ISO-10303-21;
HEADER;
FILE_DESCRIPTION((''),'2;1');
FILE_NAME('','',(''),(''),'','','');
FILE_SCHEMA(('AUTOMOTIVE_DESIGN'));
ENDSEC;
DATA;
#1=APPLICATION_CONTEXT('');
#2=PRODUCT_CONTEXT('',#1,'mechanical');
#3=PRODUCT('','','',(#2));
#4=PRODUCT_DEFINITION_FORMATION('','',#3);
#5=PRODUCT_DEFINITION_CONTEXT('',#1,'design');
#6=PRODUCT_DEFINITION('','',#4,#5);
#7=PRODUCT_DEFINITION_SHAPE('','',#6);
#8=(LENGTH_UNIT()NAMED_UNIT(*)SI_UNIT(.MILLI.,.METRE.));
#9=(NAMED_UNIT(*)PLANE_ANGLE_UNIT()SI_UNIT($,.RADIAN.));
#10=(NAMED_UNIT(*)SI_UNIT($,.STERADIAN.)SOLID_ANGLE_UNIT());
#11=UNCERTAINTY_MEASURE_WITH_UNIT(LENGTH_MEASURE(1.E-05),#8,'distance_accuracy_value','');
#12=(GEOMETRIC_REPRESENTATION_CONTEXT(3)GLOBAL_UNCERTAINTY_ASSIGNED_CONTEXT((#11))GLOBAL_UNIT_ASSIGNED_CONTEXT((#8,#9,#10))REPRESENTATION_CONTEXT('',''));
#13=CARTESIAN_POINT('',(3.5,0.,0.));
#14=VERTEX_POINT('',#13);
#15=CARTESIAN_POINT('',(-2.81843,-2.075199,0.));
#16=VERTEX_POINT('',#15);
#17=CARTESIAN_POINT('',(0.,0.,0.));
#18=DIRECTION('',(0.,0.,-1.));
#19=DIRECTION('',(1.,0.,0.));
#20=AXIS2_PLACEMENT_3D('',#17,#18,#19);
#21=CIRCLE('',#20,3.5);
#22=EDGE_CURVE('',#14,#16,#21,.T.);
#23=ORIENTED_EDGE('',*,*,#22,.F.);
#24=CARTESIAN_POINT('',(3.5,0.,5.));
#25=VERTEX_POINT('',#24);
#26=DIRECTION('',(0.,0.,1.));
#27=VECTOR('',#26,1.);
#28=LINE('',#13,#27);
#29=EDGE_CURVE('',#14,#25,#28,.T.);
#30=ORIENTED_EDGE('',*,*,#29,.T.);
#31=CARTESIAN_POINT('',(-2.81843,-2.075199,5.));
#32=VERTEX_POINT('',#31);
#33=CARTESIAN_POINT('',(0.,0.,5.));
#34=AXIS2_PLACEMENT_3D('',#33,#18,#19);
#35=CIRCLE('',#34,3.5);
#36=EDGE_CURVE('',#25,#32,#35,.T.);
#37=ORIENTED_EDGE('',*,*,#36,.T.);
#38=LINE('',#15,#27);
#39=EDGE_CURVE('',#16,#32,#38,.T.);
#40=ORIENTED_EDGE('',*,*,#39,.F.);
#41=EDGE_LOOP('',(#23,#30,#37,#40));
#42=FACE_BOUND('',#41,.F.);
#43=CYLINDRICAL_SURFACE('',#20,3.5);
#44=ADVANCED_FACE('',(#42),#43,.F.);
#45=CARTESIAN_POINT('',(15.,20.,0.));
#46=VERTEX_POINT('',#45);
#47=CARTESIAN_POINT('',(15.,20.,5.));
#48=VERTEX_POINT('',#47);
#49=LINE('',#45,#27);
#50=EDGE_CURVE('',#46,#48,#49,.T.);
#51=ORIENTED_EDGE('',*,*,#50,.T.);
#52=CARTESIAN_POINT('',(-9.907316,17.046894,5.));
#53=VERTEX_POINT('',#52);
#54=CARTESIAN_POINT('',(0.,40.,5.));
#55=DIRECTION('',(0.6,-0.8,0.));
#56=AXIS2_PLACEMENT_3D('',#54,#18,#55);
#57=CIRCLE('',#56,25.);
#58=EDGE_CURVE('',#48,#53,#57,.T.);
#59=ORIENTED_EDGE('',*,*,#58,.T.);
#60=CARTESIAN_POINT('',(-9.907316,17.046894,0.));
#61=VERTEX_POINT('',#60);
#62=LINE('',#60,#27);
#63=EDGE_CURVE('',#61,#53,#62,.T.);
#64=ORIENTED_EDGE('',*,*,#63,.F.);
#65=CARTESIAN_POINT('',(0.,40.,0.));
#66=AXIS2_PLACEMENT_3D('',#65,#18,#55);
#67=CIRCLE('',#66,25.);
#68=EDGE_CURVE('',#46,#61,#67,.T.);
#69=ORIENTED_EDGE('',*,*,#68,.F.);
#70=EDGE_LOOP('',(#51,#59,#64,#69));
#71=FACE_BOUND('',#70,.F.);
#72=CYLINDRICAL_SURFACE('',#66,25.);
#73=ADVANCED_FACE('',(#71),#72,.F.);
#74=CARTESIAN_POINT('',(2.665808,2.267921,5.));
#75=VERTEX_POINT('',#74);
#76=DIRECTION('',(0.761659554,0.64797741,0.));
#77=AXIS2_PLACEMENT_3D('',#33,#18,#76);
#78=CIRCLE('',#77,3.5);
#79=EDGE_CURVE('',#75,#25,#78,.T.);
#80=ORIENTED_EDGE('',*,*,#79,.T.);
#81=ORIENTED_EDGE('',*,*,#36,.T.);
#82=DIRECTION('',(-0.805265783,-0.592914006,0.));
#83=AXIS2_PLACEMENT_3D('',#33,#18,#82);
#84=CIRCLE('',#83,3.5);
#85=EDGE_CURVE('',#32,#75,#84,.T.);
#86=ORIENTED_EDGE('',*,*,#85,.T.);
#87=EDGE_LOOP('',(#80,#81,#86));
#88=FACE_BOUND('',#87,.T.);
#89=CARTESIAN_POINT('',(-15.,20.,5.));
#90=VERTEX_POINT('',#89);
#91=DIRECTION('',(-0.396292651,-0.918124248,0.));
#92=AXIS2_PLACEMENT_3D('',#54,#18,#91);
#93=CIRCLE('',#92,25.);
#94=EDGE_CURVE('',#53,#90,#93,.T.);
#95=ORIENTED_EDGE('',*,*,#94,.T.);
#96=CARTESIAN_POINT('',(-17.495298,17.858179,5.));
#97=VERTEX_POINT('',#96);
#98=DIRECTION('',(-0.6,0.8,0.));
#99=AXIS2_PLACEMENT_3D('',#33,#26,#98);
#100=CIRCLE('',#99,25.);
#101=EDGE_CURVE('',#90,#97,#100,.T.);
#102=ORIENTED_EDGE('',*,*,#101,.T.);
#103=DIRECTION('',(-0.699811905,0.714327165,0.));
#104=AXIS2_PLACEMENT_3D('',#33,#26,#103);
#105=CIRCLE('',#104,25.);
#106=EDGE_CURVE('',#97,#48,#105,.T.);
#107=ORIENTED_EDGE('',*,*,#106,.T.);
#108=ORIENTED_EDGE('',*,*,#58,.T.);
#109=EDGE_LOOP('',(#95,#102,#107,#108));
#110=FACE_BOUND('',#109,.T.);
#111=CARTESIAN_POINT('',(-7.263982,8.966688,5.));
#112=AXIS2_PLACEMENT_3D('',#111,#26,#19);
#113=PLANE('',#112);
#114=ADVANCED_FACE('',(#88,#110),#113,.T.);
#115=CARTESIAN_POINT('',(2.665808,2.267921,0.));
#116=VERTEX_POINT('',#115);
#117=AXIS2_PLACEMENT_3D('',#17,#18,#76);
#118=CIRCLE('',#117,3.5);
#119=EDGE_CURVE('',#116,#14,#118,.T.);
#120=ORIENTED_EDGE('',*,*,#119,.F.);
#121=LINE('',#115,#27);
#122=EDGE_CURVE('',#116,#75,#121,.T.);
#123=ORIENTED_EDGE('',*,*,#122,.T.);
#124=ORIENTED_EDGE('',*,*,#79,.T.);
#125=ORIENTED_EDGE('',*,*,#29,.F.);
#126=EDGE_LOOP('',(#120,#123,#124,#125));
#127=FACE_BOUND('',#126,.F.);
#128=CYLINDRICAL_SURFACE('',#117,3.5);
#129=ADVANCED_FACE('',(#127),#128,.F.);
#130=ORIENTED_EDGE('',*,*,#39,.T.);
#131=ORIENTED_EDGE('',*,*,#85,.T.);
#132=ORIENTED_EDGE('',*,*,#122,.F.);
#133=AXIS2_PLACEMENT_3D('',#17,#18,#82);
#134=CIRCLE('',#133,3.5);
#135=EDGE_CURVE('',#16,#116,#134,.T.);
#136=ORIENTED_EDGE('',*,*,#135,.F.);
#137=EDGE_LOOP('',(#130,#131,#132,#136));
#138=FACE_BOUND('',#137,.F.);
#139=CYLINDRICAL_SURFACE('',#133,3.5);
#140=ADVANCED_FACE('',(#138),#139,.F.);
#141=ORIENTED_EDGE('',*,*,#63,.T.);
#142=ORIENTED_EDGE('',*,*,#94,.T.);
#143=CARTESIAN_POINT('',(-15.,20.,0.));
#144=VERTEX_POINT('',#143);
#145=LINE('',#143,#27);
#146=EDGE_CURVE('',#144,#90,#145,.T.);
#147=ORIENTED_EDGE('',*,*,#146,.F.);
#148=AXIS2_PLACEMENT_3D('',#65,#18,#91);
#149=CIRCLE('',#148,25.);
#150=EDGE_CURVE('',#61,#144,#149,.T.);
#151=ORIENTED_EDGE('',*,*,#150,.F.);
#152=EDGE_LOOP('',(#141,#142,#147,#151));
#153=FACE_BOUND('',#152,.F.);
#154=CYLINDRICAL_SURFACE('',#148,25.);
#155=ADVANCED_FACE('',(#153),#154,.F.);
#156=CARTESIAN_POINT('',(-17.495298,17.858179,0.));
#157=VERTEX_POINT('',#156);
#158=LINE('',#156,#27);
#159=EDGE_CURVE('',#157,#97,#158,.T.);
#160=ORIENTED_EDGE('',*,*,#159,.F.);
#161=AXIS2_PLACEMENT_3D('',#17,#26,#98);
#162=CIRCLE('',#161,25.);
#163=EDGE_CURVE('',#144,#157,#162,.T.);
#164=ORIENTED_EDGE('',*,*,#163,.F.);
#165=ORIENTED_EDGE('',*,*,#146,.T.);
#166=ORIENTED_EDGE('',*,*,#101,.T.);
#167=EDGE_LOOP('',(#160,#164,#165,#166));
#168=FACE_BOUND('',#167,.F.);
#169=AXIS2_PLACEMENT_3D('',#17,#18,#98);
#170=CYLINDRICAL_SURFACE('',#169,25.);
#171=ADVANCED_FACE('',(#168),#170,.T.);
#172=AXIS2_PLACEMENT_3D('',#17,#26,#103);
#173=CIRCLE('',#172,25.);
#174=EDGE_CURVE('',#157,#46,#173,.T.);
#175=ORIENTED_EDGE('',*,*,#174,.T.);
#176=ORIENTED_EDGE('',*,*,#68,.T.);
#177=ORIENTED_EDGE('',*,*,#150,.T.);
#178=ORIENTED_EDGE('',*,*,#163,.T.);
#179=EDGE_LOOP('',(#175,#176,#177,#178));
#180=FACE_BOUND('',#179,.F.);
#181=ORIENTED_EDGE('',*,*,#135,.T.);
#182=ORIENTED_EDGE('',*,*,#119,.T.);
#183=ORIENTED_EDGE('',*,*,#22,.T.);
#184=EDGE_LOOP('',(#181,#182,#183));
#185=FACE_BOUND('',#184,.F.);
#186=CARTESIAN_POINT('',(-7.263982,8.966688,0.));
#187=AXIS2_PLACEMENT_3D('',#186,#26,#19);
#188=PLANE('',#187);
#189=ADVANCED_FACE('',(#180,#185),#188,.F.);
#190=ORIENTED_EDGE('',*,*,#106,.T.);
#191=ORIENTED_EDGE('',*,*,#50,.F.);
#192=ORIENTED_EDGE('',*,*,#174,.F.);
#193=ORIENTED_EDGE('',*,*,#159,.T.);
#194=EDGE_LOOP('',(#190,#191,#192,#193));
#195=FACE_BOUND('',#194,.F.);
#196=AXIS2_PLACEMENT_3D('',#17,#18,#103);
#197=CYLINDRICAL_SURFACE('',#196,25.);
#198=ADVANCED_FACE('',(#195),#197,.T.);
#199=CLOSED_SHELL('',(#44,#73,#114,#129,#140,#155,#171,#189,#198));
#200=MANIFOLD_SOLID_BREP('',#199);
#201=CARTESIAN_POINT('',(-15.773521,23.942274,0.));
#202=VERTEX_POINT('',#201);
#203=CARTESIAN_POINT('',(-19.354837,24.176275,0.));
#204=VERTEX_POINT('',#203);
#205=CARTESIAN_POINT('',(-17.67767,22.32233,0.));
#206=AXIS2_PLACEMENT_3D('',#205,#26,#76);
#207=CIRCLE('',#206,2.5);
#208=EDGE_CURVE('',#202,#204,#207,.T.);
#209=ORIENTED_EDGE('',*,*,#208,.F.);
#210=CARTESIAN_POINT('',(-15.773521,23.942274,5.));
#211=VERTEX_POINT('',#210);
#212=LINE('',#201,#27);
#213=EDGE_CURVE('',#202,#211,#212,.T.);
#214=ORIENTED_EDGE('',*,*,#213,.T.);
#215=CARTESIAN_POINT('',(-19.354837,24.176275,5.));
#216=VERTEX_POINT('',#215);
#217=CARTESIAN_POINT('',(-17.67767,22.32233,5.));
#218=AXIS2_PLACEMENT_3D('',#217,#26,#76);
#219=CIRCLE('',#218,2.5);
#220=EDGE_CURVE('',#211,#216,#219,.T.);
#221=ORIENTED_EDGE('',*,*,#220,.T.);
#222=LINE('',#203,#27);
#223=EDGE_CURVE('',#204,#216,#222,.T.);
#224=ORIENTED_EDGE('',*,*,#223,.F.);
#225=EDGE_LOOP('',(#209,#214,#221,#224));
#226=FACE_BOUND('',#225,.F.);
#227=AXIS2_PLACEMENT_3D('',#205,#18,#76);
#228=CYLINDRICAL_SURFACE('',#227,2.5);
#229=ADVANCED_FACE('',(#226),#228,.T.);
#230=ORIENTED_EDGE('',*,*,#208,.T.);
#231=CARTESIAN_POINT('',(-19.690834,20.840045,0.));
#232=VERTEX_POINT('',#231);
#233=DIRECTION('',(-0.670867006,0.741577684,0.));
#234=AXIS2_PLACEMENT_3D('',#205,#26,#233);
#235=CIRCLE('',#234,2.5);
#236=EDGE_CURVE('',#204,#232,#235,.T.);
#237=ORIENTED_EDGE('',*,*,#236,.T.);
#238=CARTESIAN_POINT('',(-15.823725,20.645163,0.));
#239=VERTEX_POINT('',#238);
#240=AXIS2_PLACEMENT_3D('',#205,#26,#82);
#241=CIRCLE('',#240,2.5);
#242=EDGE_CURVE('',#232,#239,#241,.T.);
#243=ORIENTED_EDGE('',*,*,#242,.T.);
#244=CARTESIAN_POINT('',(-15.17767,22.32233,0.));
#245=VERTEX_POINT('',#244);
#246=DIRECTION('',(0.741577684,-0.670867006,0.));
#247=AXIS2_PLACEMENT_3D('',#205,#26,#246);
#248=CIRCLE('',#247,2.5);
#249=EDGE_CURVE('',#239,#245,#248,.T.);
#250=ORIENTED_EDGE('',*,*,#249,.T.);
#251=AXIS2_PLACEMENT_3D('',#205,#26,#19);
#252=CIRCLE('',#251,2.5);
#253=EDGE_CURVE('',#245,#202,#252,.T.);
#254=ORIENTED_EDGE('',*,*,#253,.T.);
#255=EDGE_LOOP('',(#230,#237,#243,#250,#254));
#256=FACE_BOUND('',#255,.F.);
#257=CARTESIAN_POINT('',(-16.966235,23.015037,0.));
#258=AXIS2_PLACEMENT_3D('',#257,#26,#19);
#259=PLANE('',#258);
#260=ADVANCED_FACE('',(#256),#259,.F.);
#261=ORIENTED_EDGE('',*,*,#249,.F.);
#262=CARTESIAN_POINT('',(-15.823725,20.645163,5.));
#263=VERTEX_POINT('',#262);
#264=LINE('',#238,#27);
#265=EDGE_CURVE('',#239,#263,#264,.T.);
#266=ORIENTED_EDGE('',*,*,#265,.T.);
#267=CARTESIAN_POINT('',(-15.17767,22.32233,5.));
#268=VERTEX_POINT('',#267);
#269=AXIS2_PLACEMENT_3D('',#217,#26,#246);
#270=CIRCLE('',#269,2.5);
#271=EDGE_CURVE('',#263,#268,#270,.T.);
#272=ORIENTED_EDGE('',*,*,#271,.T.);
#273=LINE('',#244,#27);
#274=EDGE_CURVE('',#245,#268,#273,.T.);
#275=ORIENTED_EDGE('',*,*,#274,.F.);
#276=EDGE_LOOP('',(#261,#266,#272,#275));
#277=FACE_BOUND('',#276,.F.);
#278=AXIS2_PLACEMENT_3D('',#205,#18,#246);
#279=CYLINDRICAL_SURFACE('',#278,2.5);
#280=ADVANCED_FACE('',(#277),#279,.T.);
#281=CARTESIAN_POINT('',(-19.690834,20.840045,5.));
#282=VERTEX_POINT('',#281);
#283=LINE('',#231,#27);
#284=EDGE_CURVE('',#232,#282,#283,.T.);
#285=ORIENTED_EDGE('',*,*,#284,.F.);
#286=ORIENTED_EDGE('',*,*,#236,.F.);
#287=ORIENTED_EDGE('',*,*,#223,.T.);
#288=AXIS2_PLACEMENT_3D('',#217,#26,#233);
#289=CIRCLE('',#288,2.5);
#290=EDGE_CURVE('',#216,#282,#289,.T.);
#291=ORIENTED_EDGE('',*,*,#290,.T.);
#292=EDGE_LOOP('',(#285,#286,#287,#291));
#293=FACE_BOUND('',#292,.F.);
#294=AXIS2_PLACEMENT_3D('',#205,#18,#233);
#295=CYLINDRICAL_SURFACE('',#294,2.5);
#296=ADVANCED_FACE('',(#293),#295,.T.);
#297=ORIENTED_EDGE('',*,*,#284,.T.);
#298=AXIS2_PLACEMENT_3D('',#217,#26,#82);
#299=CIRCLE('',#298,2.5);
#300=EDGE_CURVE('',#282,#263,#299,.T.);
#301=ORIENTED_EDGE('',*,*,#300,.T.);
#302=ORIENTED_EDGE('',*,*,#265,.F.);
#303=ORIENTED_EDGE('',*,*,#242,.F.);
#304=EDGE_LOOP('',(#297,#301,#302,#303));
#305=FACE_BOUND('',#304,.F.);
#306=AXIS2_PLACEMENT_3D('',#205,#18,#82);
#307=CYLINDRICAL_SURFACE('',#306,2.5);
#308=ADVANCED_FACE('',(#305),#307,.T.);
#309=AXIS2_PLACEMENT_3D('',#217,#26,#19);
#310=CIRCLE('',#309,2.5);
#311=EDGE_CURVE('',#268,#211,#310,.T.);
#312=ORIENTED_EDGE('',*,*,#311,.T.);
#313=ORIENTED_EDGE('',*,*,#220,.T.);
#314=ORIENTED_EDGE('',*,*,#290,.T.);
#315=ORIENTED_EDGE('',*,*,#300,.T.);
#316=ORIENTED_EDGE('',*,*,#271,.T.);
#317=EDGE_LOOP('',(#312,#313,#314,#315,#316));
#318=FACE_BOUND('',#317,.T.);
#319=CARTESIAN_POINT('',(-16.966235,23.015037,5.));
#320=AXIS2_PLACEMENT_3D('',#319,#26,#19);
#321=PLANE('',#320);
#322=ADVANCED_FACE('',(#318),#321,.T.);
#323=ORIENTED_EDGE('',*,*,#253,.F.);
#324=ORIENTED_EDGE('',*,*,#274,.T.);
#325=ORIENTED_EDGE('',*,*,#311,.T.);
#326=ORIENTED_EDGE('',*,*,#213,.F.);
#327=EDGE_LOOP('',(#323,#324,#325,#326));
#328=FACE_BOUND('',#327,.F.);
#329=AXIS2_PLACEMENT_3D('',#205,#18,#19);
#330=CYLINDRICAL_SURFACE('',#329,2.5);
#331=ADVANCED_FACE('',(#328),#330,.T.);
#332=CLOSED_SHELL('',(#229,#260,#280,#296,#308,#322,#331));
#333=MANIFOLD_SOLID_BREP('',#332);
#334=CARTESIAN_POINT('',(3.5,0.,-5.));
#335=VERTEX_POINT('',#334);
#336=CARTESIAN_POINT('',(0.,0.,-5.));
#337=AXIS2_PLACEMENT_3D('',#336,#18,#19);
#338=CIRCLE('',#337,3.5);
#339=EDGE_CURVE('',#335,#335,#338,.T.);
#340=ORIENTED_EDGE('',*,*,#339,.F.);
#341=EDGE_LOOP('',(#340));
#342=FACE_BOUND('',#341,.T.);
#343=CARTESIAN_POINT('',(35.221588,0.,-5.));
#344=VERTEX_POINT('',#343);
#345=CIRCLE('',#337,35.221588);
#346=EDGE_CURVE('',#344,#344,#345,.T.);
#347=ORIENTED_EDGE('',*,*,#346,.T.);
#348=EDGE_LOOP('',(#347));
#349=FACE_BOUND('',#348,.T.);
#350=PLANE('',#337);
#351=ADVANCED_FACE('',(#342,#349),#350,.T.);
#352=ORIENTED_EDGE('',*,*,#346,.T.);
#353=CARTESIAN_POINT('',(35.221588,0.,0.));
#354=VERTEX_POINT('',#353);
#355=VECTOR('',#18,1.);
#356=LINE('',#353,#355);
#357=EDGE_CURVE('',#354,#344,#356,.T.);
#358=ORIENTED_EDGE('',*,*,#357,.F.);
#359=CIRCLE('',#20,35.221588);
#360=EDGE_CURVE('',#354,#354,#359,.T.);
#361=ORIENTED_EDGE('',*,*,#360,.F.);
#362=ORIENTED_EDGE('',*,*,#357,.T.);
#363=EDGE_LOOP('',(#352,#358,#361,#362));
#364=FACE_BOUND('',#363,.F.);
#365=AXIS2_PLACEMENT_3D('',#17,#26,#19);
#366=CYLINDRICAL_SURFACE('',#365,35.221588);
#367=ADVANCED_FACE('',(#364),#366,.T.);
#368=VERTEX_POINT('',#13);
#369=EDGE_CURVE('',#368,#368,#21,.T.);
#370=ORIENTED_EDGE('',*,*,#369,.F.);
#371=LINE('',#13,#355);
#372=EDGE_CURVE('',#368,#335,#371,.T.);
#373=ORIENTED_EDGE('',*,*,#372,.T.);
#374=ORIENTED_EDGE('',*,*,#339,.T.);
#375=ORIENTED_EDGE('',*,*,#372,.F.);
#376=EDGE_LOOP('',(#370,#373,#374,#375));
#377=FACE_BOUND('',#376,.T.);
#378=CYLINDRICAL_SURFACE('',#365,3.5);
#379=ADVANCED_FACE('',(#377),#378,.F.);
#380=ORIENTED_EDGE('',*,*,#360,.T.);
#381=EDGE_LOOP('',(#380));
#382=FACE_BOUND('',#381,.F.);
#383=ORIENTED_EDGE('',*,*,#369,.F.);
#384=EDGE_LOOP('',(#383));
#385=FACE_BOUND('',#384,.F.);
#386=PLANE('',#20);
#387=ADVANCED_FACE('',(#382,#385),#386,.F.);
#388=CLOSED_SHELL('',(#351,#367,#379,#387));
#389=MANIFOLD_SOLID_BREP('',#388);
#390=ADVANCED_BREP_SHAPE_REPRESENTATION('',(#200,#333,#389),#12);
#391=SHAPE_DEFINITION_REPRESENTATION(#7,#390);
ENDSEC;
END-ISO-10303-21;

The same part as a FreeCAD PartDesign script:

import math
import FreeCAD as App
import Part
import Sketcher

V = App.Vector

doc = App.newDocument("Part")
body = doc.addObject("PartDesign::Body", "Body")

# Sketch on XY plane
sketch1 = body.newObject("Sketcher::SketchObject", "Sketch")
sketch1.AttachmentSupport = (doc.getObject("XY_Plane"), [""])
sketch1.MapMode = "FlatFace"
sketch1.addGeometry(Part.ArcOfCircle(Part.Circle(V(0, 40, 0), V(0, 0, 1), 25), math.radians(-126.87), math.radians(-113.35)), False)
sketch1.addGeometry(Part.ArcOfCircle(Part.Circle(V(0, 0, 0), V(0, 0, 1), 25), math.radians(126.87), math.radians(134.41)), False)
sketch1.addGeometry(Part.ArcOfCircle(Part.Circle(V(0, 0, 0), V(0, 0, 1), 25), math.radians(134), math.radians(413)), False)
sketch1.addGeometry(Part.ArcOfCircle(Part.Circle(V(0, 40, 0), V(0, 0, 1), 25), math.radians(-113), math.radians(-53)), False)
sketch1.addGeometry(Part.ArcOfCircle(Part.Circle(V(0, 0, 0), V(0, 0, 1), 3.5), math.radians(40), math.radians(216)), False)
sketch1.addGeometry(Part.ArcOfCircle(Part.Circle(V(0, 0, 0), V(0, 0, 1), 3.5), math.radians(0), math.radians(40)), False)
sketch1.addGeometry(Part.ArcOfCircle(Part.Circle(V(0, 0, 0), V(0, 0, 1), 3.5), math.radians(-144), math.radians(0)), False)
sketch1.addConstraint(Sketcher.Constraint("Coincident", 0, 1, 1, 1))
sketch1.addConstraint(Sketcher.Constraint("Tangent", 1, 2, 2, 1))
sketch1.addConstraint(Sketcher.Constraint("Coincident", 2, 2, 3, 2))
sketch1.addConstraint(Sketcher.Constraint("Tangent", 3, 1, 0, 2))
sketch1.addConstraint(Sketcher.Constraint("Tangent", 4, 1, 5, 2))
sketch1.addConstraint(Sketcher.Constraint("Tangent", 5, 1, 6, 2))
sketch1.addConstraint(Sketcher.Constraint("Tangent", 6, 1, 4, 2))
sketch1.addConstraint(Sketcher.Constraint("Coincident", 1, 3, -1, 1))
sketch1.addConstraint(Sketcher.Constraint("Coincident", 4, 3, -1, 1))
sketch1.addConstraint(Sketcher.Constraint("Equal", 0, 1))
sketch1.addConstraint(Sketcher.Constraint("Equal", 1, 2))
sketch1.addConstraint(Sketcher.Constraint("Equal", 2, 3))
sketch1.addConstraint(Sketcher.Constraint("PointOnObject", 0, 3, -2))
sketch1.addConstraint(Sketcher.Constraint("PointOnObject", 5, 1, -1))
sketch1.addConstraint(Sketcher.Constraint("Radius", 0, 25.0))
sketch1.addConstraint(Sketcher.Constraint("Radius", 4, 3.5))
sketch1.addConstraint(Sketcher.Constraint("DistanceY", -1, 1, 0, 3, 40.0))
sketch1.addConstraint(Sketcher.Constraint("DistanceY", 6, 1, -1, 1, 2.075199))
sketch1.addConstraint(Sketcher.Constraint("DistanceY", -1, 1, 1, 2, 17.858179))
sketch1.addConstraint(Sketcher.Constraint("DistanceX", -1, 1, 4, 1, 2.665808))
sketch1.addConstraint(Sketcher.Constraint("DistanceX", 1, 2, 3, 1, 7.587981))
pad1 = body.newObject("PartDesign::Pad", "Pad")
pad1.Profile = sketch1
pad1.Length = 5
body2 = doc.addObject("PartDesign::Body", "Body001")

# Sketch on XY plane
sketch2 = body2.newObject("Sketcher::SketchObject", "Sketch001")
sketch2.AttachmentSupport = (doc.getObject("XY_Plane001"), [""])
sketch2.MapMode = "FlatFace"
sketch2.addGeometry(Part.ArcOfCircle(Part.Circle(V(-17.7, 22.3, 0), V(0, 0, 1), 2.5), math.radians(-42), math.radians(0)), False)
sketch2.addGeometry(Part.ArcOfCircle(Part.Circle(V(-17.7, 22.3, 0), V(0, 0, 1), 2.5), math.radians(0), math.radians(40)), False)
sketch2.addGeometry(Part.ArcOfCircle(Part.Circle(V(-17.7, 22.3, 0), V(0, 0, 1), 2.5), math.radians(40), math.radians(132)), False)
sketch2.addGeometry(Part.ArcOfCircle(Part.Circle(V(-17.7, 22.3, 0), V(0, 0, 1), 2.5), math.radians(132), math.radians(216)), False)
sketch2.addGeometry(Part.ArcOfCircle(Part.Circle(V(-17.7, 22.3, 0), V(0, 0, 1), 2.5), math.radians(-144), math.radians(-42)), False)
sketch2.addConstraint(Sketcher.Constraint("Tangent", 0, 2, 1, 1))
sketch2.addConstraint(Sketcher.Constraint("Tangent", 1, 2, 2, 1))
sketch2.addConstraint(Sketcher.Constraint("Tangent", 2, 2, 3, 1))
sketch2.addConstraint(Sketcher.Constraint("Tangent", 3, 2, 4, 1))
sketch2.addConstraint(Sketcher.Constraint("Tangent", 4, 2, 0, 1))
sketch2.addConstraint(Sketcher.Constraint("Coincident", 2, 3, 0, 3))
sketch2.addConstraint(Sketcher.Constraint("Horizontal", 4, 3, 0, 2))
sketch2.addConstraint(Sketcher.Constraint("Radius", 0, 2.5))
sketch2.addConstraint(Sketcher.Constraint("DistanceX", 0, 3, -1, 1, 17.67767))
sketch2.addConstraint(Sketcher.Constraint("DistanceY", -1, 1, 0, 3, 22.32233))
sketch2.addConstraint(Sketcher.Constraint("DistanceX", 1, 2, -1, 1, 15.773521))
sketch2.addConstraint(Sketcher.Constraint("DistanceX", 2, 2, -1, 1, 19.354837))
sketch2.addConstraint(Sketcher.Constraint("DistanceX", 3, 2, -1, 1, 19.690834))
sketch2.addConstraint(Sketcher.Constraint("DistanceX", 4, 2, -1, 1, 15.823725))
pad2 = body2.newObject("PartDesign::Pad", "Pad001")
pad2.Profile = sketch2
pad2.Length = 5
body3 = doc.addObject("PartDesign::Body", "Body002")

# Sketch on XY plane
sketch3 = body3.newObject("Sketcher::SketchObject", "Sketch002")
sketch3.AttachmentSupport = (doc.getObject("XY_Plane002"), [""])
sketch3.MapMode = "FlatFace"
sketch3.addGeometry(Part.Circle(V(0, 0, 0), V(0, 0, 1), 35.2), False)
sketch3.addGeometry(Part.Circle(V(0, 0, 0), V(0, 0, 1), 3.5), False)
sketch3.addConstraint(Sketcher.Constraint("Coincident", 0, 3, -1, 1))
sketch3.addConstraint(Sketcher.Constraint("Coincident", 1, 3, -1, 1))
sketch3.addConstraint(Sketcher.Constraint("Diameter", 1, 7.0))
sketch3.addConstraint(Sketcher.Constraint("Diameter", 0, 70.443175))
pad3 = body3.newObject("PartDesign::Pad", "Pad002")
pad3.Profile = sketch3
pad3.Length = 5
pad3.Reversed = True

doc.recompute()
